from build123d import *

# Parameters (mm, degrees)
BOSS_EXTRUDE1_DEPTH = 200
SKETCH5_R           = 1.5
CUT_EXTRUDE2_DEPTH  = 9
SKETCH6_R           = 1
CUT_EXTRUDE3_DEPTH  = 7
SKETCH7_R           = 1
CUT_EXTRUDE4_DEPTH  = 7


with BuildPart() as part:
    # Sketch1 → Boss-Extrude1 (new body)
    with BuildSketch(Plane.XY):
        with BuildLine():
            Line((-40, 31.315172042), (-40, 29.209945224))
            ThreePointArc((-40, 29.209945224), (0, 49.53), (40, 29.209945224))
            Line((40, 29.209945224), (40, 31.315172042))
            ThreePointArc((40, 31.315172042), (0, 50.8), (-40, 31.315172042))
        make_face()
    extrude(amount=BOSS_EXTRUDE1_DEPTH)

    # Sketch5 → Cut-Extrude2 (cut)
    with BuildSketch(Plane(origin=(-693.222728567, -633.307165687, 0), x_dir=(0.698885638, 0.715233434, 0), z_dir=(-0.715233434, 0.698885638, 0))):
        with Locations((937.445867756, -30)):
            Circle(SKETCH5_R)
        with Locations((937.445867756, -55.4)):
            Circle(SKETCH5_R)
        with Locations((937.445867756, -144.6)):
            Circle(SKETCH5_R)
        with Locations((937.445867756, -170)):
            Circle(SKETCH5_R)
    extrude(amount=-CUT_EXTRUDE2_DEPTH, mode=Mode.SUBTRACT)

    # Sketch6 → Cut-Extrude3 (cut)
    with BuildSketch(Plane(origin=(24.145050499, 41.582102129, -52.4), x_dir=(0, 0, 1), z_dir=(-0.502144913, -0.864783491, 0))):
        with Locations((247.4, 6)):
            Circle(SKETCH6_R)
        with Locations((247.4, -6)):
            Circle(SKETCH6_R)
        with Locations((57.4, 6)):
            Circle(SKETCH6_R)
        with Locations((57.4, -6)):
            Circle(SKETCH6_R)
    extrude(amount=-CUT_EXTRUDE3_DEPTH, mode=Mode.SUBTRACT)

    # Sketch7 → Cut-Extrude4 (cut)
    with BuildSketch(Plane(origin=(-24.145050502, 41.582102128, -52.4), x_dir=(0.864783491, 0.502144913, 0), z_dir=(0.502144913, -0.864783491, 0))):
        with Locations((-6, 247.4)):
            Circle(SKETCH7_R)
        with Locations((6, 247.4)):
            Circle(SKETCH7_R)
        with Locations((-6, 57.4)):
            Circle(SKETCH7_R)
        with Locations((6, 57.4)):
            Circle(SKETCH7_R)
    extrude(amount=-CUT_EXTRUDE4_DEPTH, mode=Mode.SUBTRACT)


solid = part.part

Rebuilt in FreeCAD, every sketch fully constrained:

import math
import FreeCAD as App
import Part
import Sketcher

V = App.Vector
Q = App.Units.Quantity

doc = App.newDocument("Part")
body = doc.addObject("PartDesign::Body", "Body")

# Sketch on XY plane
sketch1 = body.newObject("Sketcher::SketchObject", "Sketch")
sketch1.AttachmentSupport = (doc.getObject("XY_Plane"), [""])
sketch1.MapMode = "FlatFace"
sketch1.addGeometry([
    Part.LineSegment(V(-40, 31.3, 0), V(-40, 29.2, 0)),
    Part.ArcOfCircle(Part.Circle(V(0, 0, 0), V(0, 0, 1), 49.5), math.radians(36), math.radians(144)),
    Part.LineSegment(V(40, 29.2, 0), V(40, 31.3, 0)),
    Part.ArcOfCircle(Part.Circle(V(0, 0, 0), V(0, 0, 1), 50.8), math.radians(38), math.radians(142)),
], False)
sketch1.addConstraint([
    Sketcher.Constraint("Coincident", 0, 2, 1, 2),
    Sketcher.Constraint("Coincident", 1, 1, 2, 1),
    Sketcher.Constraint("Coincident", 2, 2, 3, 1),
    Sketcher.Constraint("Coincident", 3, 2, 0, 1),
    Sketcher.Constraint("Vertical", 0),
    Sketcher.Constraint("Vertical", 2),
    Sketcher.Constraint("Coincident", 1, 3, -1, 1),
    Sketcher.Constraint("Coincident", 3, 3, -1, 1),
    Sketcher.Constraint("Horizontal", 0, 2, 1, 1),
    Sketcher.Constraint("Radius", 3, Q("50.8 mm")),
    Sketcher.Constraint("Radius", 1, Q("49.53 mm")),
    Sketcher.Constraint("DistanceX", 0, 2, -1, 1, Q("40 mm")),
])
pad1 = body.newObject("PartDesign::Pad", "Pad")
pad1.Profile = sketch1
pad1.Length = 200

# Sketch on an angled plane
sketch2 = body.newObject("Sketcher::SketchObject", "Sketch001")
sketch2.Placement = App.Placement(V(-693.222729, -633.307166, 0), App.Rotation(V(0.698885638, 0.715233434, 0), V(0, 0, -1), V(-0.715233434, 0.698885638, 0), "ZXY"))
sketch2.addGeometry([
    Part.Circle(V(937.4, -30, 0), V(0, 0, 1), 1.5),
    Part.Circle(V(937.4, -55.4, 0), V(0, 0, 1), 1.5),
    Part.Circle(V(937.4, -144.6, 0), V(0, 0, 1), 1.5),
    Part.Circle(V(937.4, -170, 0), V(0, 0, 1), 1.5),
], False)
sketch2.addConstraint([
    Sketcher.Constraint("Equal", 0, 1),
    Sketcher.Constraint("Equal", 1, 2),
    Sketcher.Constraint("Equal", 2, 3),
    Sketcher.Constraint("Vertical", 0, 3, 1, 3),
    Sketcher.Constraint("Vertical", 1, 3, 2, 3),
    Sketcher.Constraint("Vertical", 2, 3, 3, 3),
    Sketcher.Constraint("Diameter", 0, Q("3 mm")),
    Sketcher.Constraint("DistanceY", 0, 3, -1, 1, Q("30 mm")),
    Sketcher.Constraint("DistanceY", 3, 3, -1, 1, Q("170 mm")),
    Sketcher.Constraint("DistanceY", 1, 3, -1, 1, Q("55.4 mm")),
    Sketcher.Constraint("DistanceY", 2, 3, -1, 1, Q("144.6 mm")),
    Sketcher.Constraint("DistanceX", -1, 1, 0, 3, Q("937.445868 mm")),
])
pocket1 = body.newObject("PartDesign::Pocket", "Pocket")
pocket1.Profile = sketch2
pocket1.Length = 9

# Sketch on an angled plane
sketch3 = body.newObject("Sketcher::SketchObject", "Sketch002")
sketch3.Placement = App.Placement(V(24.14505, 41.582102, -52.4), App.Rotation(V(0, 0, 1), V(-0.864783491, 0.502144913, 0), V(-0.502144913, -0.864783491, 0), "ZXY"))
sketch3.addGeometry([
    Part.Circle(V(247.4, 6, 0), V(0, 0, 1), 1),
    Part.Circle(V(247.4, -6, 0), V(0, 0, 1), 1),
    Part.Circle(V(57.4, 6, 0), V(0, 0, 1), 1),
    Part.Circle(V(57.4, -6, 0), V(0, 0, 1), 1),
], False)
sketch3.addConstraint([
    Sketcher.Constraint("Equal", 0, 1),
    Sketcher.Constraint("Equal", 1, 2),
    Sketcher.Constraint("Equal", 2, 3),
    Sketcher.Constraint("Symmetric", 0, 3, 1, 3, -1),
    Sketcher.Constraint("Symmetric", 2, 3, 3, 3, -1),
    Sketcher.Constraint("Horizontal", 0, 3, 2, 3),
    Sketcher.Constraint("Diameter", 0, Q("2 mm")),
    Sketcher.Constraint("DistanceY", -1, 1, 0, 3, Q("6 mm")),
    Sketcher.Constraint("DistanceX", 2, 3, 0, 3, Q("190 mm")),
    Sketcher.Constraint("DistanceX", -1, 1, 0, 3, Q("247.4 mm")),
])
pocket2 = body.newObject("PartDesign::Pocket", "Pocket001")
pocket2.Profile = sketch3
pocket2.Length = 7

# Sketch on an angled plane
sketch4 = body.newObject("Sketcher::SketchObject", "Sketch003")
sketch4.Placement = App.Placement(V(-24.145051, 41.582102, -52.4), App.Rotation(V(0.864783491, 0.502144913, 0), V(0, 0, 1), V(0.502144913, -0.864783491, 0), "ZXY"))
sketch4.addGeometry([
    Part.Circle(V(-6, 247.4, 0), V(0, 0, 1), 1),
    Part.Circle(V(6, 247.4, 0), V(0, 0, 1), 1),
    Part.Circle(V(-6, 57.4, 0), V(0, 0, 1), 1),
    Part.Circle(V(6, 57.4, 0), V(0, 0, 1), 1),
], False)
sketch4.addConstraint([
    Sketcher.Constraint("Equal", 0, 1),
    Sketcher.Constraint("Equal", 1, 2),
    Sketcher.Constraint("Equal", 2, 3),
    Sketcher.Constraint("Symmetric", 0, 3, 1, 3, -2),
    Sketcher.Constraint("Symmetric", 2, 3, 3, 3, -2),
    Sketcher.Constraint("Vertical", 0, 3, 2, 3),
    Sketcher.Constraint("Diameter", 0, Q("2 mm")),
    Sketcher.Constraint("DistanceX", 0, 3, -1, 1, Q("6 mm")),
    Sketcher.Constraint("DistanceY", 2, 3, 0, 3, Q("190 mm")),
    Sketcher.Constraint("DistanceY", -1, 1, 0, 3, Q("247.4 mm")),
])
pocket3 = body.newObject("PartDesign::Pocket", "Pocket002")
pocket3.Profile = sketch4
pocket3.Length = 7

doc.recompute()
